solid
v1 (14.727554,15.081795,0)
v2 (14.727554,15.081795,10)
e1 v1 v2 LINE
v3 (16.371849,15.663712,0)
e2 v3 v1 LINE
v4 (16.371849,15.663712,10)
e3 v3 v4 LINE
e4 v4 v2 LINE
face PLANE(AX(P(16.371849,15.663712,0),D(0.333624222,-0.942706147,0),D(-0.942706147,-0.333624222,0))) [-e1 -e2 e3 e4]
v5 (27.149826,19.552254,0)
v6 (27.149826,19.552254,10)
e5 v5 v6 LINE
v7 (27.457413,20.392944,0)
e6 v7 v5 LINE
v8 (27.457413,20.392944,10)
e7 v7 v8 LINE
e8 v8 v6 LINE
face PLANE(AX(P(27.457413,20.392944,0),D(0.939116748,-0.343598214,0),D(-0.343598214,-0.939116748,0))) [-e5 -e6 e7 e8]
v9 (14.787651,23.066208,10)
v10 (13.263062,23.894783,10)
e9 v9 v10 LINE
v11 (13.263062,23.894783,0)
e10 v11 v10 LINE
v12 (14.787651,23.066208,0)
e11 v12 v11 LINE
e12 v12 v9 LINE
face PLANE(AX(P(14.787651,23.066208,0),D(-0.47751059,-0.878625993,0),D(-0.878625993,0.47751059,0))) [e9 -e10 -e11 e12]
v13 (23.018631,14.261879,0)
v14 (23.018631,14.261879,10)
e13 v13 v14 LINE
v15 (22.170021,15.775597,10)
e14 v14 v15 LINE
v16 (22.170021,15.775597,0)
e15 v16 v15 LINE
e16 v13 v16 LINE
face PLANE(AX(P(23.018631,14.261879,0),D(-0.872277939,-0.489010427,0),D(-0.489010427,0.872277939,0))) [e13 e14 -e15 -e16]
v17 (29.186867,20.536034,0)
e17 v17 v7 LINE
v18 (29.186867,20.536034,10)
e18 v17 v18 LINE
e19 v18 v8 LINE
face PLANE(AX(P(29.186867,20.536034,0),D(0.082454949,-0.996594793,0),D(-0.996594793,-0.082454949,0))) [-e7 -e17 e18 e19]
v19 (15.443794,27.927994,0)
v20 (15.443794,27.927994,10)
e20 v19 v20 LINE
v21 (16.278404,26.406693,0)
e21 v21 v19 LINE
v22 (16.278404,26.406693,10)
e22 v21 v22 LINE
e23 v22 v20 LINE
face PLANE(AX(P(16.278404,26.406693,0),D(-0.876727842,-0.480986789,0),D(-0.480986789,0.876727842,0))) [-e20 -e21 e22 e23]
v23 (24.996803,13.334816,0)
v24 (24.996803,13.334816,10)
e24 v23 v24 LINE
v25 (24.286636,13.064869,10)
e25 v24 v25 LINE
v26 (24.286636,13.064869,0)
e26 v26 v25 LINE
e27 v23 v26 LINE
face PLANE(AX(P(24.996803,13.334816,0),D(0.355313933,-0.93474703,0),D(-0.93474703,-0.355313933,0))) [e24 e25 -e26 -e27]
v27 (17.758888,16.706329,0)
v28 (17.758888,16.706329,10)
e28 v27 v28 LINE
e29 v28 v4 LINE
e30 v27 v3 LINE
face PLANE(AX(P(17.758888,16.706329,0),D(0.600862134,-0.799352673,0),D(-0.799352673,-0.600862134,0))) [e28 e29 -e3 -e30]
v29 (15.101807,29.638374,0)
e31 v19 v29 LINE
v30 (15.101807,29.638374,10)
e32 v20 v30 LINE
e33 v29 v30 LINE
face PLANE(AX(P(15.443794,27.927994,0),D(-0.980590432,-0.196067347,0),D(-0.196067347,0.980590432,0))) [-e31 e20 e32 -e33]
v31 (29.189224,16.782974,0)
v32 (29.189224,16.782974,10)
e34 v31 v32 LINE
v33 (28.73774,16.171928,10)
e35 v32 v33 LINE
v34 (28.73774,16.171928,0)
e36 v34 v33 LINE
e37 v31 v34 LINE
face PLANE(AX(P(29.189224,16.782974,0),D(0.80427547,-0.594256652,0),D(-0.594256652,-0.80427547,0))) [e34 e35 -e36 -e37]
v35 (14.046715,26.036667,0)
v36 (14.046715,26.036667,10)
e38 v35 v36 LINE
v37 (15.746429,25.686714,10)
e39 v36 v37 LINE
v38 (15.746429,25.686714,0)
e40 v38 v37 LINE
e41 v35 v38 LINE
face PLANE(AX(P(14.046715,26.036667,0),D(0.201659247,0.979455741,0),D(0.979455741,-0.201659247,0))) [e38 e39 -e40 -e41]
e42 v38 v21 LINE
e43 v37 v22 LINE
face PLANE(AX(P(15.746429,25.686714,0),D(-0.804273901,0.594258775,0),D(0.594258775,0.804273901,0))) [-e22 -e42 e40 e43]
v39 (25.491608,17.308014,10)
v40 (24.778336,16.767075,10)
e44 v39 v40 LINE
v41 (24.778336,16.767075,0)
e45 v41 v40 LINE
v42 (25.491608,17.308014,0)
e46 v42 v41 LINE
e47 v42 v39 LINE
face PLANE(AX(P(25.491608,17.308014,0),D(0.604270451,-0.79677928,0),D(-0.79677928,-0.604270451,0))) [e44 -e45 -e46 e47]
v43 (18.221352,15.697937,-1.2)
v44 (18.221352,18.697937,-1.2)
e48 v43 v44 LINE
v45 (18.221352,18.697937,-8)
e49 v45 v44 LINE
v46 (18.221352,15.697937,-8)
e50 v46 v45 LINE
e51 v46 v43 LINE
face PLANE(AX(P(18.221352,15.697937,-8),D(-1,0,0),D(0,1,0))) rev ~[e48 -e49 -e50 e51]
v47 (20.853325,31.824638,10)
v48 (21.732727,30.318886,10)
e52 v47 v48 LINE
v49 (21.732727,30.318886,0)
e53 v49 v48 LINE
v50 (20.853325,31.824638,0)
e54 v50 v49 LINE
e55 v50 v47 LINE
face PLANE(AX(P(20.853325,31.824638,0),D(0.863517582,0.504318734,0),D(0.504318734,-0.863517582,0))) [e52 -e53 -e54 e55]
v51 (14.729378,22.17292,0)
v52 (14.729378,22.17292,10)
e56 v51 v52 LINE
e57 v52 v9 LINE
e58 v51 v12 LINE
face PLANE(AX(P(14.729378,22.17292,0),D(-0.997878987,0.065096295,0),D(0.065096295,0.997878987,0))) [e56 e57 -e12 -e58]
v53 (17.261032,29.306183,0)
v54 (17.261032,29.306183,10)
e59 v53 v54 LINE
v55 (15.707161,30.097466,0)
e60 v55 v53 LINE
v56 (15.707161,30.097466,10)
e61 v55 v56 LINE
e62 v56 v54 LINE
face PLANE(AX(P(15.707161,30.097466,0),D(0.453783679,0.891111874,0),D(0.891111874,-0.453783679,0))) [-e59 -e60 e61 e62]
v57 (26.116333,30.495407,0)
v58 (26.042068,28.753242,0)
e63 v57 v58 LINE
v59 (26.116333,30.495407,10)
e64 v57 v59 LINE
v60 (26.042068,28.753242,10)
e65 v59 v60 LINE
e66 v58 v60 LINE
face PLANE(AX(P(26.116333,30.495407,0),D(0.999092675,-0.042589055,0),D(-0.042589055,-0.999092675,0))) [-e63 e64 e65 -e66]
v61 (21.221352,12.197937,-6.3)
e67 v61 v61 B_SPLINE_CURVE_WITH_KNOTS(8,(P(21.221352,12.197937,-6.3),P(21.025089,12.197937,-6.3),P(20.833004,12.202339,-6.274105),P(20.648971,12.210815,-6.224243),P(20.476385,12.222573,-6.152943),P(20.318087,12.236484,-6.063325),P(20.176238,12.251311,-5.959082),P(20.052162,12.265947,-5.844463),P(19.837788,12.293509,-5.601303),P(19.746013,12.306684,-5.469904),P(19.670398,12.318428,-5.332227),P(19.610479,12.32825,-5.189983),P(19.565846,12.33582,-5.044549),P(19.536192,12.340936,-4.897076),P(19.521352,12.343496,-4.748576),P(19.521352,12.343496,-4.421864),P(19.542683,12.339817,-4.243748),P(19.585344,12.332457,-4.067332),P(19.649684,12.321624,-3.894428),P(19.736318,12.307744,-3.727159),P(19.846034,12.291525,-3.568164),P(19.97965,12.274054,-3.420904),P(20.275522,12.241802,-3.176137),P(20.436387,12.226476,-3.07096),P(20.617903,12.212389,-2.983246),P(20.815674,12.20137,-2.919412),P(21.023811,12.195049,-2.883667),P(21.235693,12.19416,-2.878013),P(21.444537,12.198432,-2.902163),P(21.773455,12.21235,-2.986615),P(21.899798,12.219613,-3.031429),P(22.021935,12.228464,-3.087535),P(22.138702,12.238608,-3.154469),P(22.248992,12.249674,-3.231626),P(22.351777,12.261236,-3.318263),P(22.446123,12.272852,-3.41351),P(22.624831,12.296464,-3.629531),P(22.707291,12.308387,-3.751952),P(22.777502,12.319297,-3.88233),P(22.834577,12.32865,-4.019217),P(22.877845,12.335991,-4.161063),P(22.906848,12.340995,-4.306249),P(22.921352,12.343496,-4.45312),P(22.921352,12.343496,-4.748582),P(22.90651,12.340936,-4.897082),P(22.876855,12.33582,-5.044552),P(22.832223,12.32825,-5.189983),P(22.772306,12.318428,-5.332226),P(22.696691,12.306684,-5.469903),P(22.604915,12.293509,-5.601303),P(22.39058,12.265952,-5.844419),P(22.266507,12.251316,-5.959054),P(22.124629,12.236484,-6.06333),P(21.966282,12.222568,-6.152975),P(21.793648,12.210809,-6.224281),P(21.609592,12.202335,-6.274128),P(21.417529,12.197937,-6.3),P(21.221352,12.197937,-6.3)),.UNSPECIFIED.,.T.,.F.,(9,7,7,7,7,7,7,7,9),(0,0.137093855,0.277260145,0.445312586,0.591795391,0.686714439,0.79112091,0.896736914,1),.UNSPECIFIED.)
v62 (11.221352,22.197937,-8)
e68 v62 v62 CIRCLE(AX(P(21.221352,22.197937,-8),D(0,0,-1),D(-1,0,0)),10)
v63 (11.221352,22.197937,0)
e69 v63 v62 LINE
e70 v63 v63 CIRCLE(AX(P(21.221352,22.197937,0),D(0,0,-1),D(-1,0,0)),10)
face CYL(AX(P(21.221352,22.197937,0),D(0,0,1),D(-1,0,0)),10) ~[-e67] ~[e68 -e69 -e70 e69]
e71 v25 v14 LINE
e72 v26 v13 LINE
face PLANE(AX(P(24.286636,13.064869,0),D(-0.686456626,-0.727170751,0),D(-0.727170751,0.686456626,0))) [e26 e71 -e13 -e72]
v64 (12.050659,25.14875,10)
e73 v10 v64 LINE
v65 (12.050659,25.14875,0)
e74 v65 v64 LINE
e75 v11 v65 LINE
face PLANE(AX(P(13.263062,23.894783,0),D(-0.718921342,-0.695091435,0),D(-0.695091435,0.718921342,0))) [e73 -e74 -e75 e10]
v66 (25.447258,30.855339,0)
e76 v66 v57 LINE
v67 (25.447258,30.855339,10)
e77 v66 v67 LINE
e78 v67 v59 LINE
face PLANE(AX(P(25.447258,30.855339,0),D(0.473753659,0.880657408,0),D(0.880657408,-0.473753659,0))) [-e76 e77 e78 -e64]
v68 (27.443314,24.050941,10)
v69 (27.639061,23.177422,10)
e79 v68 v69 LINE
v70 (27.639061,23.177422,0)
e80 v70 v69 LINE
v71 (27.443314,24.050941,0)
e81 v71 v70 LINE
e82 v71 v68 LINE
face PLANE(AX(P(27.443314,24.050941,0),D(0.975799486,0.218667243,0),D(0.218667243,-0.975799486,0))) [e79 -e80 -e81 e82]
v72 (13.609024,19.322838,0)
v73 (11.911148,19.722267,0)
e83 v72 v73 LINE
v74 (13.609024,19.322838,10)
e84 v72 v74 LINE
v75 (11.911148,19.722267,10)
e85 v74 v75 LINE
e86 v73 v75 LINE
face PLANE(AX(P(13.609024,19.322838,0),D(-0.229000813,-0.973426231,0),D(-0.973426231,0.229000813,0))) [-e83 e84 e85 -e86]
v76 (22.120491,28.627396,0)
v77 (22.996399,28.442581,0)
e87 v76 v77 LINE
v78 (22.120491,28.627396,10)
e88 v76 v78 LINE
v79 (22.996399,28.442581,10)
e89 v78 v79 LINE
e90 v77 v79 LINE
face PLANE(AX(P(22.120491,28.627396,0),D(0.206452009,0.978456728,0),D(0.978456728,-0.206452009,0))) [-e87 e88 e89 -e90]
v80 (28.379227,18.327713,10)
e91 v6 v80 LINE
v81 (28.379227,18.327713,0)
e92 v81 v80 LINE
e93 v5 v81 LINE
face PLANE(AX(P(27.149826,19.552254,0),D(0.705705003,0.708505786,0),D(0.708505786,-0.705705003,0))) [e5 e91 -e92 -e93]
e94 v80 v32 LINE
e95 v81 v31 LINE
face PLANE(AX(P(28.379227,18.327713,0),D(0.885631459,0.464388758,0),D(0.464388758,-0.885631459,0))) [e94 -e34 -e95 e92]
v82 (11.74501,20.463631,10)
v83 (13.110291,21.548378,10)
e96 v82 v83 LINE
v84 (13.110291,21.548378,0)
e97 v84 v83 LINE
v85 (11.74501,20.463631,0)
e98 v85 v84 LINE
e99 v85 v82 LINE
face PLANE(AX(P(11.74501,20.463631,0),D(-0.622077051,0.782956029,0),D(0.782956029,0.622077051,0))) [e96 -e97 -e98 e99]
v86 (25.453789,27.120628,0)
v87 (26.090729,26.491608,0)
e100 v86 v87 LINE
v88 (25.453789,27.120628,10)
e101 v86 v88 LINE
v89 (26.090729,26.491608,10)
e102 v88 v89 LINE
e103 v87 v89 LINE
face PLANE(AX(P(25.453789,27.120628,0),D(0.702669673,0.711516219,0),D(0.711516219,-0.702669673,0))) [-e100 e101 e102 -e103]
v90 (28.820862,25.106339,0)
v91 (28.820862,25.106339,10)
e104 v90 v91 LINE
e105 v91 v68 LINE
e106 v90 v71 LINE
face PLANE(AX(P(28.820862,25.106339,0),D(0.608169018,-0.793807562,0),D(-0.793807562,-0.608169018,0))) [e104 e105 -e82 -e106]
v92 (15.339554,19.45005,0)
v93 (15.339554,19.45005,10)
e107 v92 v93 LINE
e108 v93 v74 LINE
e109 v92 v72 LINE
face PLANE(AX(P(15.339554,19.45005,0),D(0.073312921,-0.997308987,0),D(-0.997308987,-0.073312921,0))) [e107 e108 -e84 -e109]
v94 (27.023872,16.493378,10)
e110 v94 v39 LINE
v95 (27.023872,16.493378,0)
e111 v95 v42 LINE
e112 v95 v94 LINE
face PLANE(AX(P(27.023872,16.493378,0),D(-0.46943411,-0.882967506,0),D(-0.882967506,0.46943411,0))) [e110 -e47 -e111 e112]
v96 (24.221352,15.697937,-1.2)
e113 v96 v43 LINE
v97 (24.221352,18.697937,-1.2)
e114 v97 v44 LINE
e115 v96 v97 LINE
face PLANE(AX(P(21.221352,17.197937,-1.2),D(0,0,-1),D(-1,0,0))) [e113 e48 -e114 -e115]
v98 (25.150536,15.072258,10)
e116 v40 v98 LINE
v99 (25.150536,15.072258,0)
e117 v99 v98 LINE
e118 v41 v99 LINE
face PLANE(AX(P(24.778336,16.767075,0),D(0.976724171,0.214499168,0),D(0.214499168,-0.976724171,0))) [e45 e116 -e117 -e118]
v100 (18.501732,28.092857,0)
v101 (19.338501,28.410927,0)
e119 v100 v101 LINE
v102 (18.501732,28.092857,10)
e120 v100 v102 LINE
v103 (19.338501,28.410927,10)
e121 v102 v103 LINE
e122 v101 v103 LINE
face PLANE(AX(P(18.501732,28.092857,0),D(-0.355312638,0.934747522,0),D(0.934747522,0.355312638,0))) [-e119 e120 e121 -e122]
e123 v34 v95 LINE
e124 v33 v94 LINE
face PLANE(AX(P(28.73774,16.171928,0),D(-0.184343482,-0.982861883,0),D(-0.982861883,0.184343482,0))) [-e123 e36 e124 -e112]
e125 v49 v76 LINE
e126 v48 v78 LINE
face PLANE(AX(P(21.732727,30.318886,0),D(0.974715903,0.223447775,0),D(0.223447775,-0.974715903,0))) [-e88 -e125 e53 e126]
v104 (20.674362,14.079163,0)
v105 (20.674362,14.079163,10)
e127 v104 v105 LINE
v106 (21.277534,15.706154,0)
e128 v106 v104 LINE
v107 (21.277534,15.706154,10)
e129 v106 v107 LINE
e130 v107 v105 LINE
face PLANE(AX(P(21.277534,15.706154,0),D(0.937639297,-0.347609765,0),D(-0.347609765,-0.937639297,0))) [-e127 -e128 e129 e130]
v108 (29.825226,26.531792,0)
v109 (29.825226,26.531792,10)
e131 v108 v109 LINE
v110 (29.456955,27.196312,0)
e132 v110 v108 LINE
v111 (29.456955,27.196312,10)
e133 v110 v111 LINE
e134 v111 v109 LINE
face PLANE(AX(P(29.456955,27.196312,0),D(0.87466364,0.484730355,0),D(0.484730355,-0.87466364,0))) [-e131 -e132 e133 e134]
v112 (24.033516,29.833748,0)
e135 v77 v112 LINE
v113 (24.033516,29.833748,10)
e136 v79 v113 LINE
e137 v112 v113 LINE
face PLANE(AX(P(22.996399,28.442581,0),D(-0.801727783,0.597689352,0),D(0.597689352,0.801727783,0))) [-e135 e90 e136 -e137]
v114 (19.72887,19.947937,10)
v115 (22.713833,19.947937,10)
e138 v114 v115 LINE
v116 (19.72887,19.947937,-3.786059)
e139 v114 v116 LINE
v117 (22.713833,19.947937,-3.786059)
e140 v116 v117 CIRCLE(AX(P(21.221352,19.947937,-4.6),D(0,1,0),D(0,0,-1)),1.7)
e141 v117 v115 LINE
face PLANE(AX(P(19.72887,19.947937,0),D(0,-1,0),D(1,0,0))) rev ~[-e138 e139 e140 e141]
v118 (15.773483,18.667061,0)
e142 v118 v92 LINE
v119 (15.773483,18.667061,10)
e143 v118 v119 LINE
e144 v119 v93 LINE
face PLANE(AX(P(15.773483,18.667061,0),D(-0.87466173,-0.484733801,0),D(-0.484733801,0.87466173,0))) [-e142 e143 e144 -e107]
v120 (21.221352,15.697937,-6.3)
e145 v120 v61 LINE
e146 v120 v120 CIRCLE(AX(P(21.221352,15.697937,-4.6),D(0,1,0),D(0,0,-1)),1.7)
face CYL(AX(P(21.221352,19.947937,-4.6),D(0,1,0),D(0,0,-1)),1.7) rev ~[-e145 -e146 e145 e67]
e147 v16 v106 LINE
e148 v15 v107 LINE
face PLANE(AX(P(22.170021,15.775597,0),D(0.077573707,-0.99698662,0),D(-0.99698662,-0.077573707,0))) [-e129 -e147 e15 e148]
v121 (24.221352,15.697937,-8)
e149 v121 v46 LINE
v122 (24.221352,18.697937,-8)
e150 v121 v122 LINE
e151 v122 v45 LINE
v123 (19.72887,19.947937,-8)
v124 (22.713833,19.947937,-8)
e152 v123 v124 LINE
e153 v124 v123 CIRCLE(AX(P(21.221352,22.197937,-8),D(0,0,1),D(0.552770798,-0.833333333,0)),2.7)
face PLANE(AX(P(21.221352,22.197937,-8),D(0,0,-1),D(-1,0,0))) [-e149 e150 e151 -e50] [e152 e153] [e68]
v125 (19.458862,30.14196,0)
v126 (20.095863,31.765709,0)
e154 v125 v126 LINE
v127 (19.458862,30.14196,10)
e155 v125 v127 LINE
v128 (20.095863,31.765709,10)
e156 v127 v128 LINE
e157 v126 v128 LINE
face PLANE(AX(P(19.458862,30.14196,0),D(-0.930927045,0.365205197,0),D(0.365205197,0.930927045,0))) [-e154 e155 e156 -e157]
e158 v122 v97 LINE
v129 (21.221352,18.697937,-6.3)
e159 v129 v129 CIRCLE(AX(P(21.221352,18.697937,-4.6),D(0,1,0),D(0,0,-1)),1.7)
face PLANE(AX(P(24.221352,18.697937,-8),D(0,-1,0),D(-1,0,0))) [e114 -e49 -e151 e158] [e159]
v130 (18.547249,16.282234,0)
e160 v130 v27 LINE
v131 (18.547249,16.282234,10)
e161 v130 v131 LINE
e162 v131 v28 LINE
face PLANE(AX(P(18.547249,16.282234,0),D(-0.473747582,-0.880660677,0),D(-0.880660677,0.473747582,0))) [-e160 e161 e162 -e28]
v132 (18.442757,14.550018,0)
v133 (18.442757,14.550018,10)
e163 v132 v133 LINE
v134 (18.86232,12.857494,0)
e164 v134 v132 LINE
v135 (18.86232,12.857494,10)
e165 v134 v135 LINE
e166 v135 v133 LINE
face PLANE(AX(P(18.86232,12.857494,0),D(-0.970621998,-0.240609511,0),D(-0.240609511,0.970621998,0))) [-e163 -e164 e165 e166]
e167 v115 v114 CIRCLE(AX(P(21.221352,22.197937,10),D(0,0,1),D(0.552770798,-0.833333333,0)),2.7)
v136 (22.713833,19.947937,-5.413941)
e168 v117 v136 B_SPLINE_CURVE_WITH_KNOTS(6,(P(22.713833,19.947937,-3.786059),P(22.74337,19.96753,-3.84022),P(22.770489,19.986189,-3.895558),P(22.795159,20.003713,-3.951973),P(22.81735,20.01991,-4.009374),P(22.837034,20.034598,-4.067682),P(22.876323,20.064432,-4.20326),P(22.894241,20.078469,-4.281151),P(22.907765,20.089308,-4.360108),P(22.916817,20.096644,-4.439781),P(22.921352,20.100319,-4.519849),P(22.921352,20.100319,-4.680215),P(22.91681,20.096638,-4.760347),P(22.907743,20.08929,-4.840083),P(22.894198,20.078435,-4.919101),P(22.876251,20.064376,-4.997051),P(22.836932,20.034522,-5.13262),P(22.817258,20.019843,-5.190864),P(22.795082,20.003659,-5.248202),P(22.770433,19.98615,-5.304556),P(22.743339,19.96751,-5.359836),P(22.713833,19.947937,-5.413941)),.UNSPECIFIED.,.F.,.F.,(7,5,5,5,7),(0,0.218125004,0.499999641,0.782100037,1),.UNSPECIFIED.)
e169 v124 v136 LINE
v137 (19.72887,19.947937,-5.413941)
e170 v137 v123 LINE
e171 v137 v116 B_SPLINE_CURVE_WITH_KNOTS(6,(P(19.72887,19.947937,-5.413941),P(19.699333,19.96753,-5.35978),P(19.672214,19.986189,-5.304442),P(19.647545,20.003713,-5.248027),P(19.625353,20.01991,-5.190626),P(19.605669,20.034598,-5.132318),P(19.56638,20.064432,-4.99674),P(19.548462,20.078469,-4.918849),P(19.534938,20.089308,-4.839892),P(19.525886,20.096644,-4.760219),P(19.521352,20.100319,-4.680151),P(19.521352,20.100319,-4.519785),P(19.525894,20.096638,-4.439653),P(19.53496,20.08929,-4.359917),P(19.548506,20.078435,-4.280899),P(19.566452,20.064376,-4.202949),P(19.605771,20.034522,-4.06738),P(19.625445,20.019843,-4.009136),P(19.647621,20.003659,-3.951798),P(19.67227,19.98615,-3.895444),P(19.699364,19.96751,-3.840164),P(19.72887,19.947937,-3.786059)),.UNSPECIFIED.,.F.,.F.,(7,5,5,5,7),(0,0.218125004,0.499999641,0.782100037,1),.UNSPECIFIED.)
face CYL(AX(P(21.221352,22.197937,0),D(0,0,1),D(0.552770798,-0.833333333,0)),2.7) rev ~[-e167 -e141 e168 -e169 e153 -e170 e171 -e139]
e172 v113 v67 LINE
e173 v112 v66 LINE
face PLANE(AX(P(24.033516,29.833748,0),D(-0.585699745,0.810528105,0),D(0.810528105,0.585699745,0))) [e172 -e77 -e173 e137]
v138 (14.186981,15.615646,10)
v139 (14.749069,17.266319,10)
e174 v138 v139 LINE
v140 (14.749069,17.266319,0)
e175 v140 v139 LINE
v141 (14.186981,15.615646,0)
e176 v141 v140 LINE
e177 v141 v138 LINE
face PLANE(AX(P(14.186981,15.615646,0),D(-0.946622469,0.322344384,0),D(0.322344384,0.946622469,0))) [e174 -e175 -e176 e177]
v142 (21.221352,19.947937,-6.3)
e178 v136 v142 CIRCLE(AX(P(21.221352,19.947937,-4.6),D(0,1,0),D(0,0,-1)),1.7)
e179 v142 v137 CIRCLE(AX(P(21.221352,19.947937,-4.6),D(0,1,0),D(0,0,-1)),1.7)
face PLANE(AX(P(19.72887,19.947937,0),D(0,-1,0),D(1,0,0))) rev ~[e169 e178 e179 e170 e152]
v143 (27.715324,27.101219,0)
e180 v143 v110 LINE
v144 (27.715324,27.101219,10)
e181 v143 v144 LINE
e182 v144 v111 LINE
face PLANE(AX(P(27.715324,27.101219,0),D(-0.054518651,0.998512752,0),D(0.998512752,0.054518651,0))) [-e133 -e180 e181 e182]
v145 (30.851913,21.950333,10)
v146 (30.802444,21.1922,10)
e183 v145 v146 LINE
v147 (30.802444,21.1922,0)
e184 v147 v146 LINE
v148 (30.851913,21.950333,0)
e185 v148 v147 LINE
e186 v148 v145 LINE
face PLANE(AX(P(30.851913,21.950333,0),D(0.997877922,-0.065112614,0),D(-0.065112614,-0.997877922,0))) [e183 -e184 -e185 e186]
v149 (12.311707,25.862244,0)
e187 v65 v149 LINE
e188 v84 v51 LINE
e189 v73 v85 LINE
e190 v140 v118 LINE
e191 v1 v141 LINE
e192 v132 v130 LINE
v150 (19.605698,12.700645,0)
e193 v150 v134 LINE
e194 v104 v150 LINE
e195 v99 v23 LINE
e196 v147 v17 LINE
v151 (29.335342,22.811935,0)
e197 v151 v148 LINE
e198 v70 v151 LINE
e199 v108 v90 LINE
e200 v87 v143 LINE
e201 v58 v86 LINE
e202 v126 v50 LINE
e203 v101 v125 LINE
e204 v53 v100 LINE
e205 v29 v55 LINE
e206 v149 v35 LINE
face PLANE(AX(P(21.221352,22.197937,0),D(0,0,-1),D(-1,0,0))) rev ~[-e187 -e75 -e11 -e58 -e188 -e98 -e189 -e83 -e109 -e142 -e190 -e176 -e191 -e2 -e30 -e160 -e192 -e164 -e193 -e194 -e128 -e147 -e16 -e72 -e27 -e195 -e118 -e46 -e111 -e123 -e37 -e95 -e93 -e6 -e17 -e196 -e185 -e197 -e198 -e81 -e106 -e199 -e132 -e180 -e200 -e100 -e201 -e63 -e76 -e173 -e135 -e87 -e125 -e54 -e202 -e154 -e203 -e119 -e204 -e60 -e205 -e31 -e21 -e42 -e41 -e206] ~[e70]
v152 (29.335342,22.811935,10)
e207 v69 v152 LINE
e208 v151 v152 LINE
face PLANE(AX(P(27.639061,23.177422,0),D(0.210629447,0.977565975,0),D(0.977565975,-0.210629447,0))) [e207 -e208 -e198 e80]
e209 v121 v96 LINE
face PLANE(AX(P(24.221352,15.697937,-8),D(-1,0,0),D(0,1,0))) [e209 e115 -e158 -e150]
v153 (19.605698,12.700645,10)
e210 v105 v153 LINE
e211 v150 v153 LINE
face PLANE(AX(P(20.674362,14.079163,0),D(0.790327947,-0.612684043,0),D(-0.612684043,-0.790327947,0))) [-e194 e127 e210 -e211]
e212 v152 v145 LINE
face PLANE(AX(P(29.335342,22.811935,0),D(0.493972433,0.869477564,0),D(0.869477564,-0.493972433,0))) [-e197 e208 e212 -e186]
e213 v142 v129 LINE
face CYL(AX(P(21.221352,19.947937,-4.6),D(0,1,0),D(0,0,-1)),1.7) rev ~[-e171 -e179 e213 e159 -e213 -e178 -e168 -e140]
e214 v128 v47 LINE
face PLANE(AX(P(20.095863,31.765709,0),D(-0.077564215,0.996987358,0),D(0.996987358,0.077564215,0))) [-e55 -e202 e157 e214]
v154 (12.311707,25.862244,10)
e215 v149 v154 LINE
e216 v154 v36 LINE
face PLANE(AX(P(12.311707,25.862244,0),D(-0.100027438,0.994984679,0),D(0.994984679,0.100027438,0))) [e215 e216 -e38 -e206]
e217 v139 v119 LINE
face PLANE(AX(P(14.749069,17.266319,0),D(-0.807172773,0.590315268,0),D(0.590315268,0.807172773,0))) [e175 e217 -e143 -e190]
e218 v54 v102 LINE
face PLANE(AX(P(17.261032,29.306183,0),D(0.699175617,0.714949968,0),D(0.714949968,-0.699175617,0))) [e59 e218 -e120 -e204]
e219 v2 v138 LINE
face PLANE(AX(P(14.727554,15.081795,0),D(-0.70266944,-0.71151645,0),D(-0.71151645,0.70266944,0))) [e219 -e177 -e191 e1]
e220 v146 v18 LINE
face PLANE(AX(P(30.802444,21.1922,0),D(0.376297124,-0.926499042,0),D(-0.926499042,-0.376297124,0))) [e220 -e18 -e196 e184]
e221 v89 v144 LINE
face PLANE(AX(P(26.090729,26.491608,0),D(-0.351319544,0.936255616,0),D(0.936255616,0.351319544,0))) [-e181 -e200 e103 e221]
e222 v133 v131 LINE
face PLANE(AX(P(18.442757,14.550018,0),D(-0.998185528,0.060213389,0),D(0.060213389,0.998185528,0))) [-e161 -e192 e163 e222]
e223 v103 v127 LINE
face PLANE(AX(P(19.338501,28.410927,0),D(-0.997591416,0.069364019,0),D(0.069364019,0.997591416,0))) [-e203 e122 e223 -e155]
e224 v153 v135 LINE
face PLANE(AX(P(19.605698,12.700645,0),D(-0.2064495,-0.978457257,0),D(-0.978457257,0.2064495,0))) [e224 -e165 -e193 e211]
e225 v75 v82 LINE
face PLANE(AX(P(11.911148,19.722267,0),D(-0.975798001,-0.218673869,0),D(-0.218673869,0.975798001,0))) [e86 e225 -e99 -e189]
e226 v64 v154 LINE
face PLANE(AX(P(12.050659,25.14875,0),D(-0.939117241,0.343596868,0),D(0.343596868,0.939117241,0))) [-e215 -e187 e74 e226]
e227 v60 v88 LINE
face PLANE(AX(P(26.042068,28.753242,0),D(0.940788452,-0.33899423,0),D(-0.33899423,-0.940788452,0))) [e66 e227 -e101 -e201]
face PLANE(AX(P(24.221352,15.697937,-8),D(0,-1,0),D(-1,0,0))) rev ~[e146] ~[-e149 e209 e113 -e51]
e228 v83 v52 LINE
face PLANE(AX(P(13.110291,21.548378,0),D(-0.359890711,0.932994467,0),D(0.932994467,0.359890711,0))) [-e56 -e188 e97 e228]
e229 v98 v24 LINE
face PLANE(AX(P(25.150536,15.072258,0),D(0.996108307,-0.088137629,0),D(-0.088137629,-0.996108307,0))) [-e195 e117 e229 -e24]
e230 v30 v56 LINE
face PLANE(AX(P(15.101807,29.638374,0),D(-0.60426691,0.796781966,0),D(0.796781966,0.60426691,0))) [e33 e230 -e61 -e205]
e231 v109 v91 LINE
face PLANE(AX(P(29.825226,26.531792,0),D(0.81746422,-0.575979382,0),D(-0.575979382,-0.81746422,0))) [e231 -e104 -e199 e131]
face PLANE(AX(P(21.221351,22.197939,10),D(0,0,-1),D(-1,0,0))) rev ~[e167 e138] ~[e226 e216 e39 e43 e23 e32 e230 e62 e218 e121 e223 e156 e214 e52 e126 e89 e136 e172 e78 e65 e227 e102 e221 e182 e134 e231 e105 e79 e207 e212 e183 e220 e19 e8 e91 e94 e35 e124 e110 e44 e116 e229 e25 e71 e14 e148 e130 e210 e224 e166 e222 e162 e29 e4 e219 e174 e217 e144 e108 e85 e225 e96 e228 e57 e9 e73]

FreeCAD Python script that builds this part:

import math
import FreeCAD as App
import Part
import Sketcher

V = App.Vector
Q = App.Units.Quantity

doc = App.newDocument("Part")
params = doc.addObject("Spreadsheet::Sheet", "Params")
for row, (alias, value) in enumerate([
    ("sketch1_radius", "2.7 mm"),
    ("pad1_length", "10 mm"),
    ("sketch2_diameter", "20 mm"),
    ("sketch2_radius", "2.7 mm"),
    ("pad2_length", "8 mm"),
    ("sketch3_diameter", "3.4 mm"),
    ("pocket1_length", "2 mm"),
    ("pocket1_length2", "35.997647 mm"),
    ("sketch4_width", "6 mm"),
    ("sketch4_height", "3 mm"),
    ("pocket2_length", "6.8 mm"),
], start=1):
    params.set(f"A{row}", alias)
    params.set(f"B{row}", "=" + value)
    params.setAlias(f"B{row}", alias)

body = doc.addObject("PartDesign::Body", "Body")

# Sketch on XY plane
sketch1 = doc.addObject("Sketcher::SketchObject", "Sketch")
body.addObject(sketch1)
sketch1.AttachmentSupport = (doc.XY_Plane, [""])
sketch1.MapMode = "FlatFace"
sketch1.addGeometry([
    Part.LineSegment(V(15.443794, 27.927994, 0), V(16.278404, 26.406693, 0)),  # 0
    Part.LineSegment(V(16.278404, 26.406693, 0), V(15.746429, 25.686714, 0)),  # 1
    Part.LineSegment(V(15.746429, 25.686714, 0), V(14.046715, 26.036667, 0)),  # 2
    Part.LineSegment(V(14.046715, 26.036667, 0), V(12.311707, 25.862244, 0)),  # 3
    Part.LineSegment(V(12.311707, 25.862244, 0), V(12.050659, 25.14875, 0)),  # 4
    Part.LineSegment(V(12.050659, 25.14875, 0), V(13.263062, 23.894783, 0)),  # 5
    Part.LineSegment(V(13.263062, 23.894783, 0), V(14.787651, 23.066208, 0)),  # 6
    Part.LineSegment(V(14.787651, 23.066208, 0), V(14.729378, 22.17292, 0)),  # 7
    Part.LineSegment(V(14.729378, 22.17292, 0), V(13.110291, 21.548378, 0)),  # 8
    Part.LineSegment(V(13.110291, 21.548378, 0), V(11.74501, 20.463631, 0)),  # 9
    Part.LineSegment(V(11.74501, 20.463631, 0), V(11.911148, 19.722267, 0)),  # 10
    Part.LineSegment(V(11.911148, 19.722267, 0), V(13.609024, 19.322838, 0)),  # 11
    Part.LineSegment(V(13.609024, 19.322838, 0), V(15.339554, 19.45005, 0)),  # 12
    Part.LineSegment(V(15.339554, 19.45005, 0), V(15.773483, 18.667061, 0)),  # 13
    Part.LineSegment(V(15.773483, 18.667061, 0), V(14.749069, 17.266319, 0)),  # 14
    Part.LineSegment(V(14.749069, 17.266319, 0), V(14.186981, 15.615646, 0)),  # 15
    Part.LineSegment(V(14.186981, 15.615646, 0), V(14.727554, 15.081795, 0)),  # 16
    Part.LineSegment(V(14.727554, 15.081795, 0), V(16.371849, 15.663712, 0)),  # 17
    Part.LineSegment(V(16.371849, 15.663712, 0), V(17.758888, 16.706329, 0)),  # 18
    Part.LineSegment(V(17.758888, 16.706329, 0), V(18.547249, 16.282234, 0)),  # 19
    Part.LineSegment(V(18.547249, 16.282234, 0), V(18.442757, 14.550018, 0)),  # 20
    Part.LineSegment(V(18.442757, 14.550018, 0), V(18.86232, 12.857494, 0)),  # 21
    Part.LineSegment(V(18.86232, 12.857494, 0), V(19.605698, 12.700645, 0)),  # 22
    Part.LineSegment(V(19.605698, 12.700645, 0), V(20.674362, 14.079163, 0)),  # 23
    Part.LineSegment(V(20.674362, 14.079163, 0), V(21.277534, 15.706154, 0)),  # 24
    Part.LineSegment(V(21.277534, 15.706154, 0), V(22.170021, 15.775597, 0)),  # 25
    Part.LineSegment(V(22.170021, 15.775597, 0), V(23.018631, 14.261879, 0)),  # 26
    Part.LineSegment(V(23.018631, 14.261879, 0), V(24.286636, 13.064869, 0)),  # 27
    Part.LineSegment(V(24.286636, 13.064869, 0), V(24.996803, 13.334816, 0)),  # 28
    Part.LineSegment(V(24.996803, 13.334816, 0), V(25.150536, 15.072258, 0)),  # 29
    Part.LineSegment(V(25.150536, 15.072258, 0), V(24.778336, 16.767075, 0)),  # 30
    Part.LineSegment(V(24.778336, 16.767075, 0), V(25.491608, 17.308014, 0)),  # 31
    Part.LineSegment(V(25.491608, 17.308014, 0), V(27.023872, 16.493378, 0)),  # 32
    Part.LineSegment(V(27.023872, 16.493378, 0), V(28.73774, 16.171928, 0)),  # 33
    Part.LineSegment(V(28.73774, 16.171928, 0), V(29.189224, 16.782974, 0)),  # 34
    Part.LineSegment(V(29.189224, 16.782974, 0), V(28.379227, 18.327713, 0)),  # 35
    Part.LineSegment(V(28.379227, 18.327713, 0), V(27.149826, 19.552254, 0)),  # 36
    Part.LineSegment(V(27.149826, 19.552254, 0), V(27.457413, 20.392944, 0)),  # 37
    Part.LineSegment(V(27.457413, 20.392944, 0), V(29.186867, 20.536034, 0)),  # 38
    Part.LineSegment(V(29.186867, 20.536034, 0), V(30.802444, 21.1922, 0)),  # 39
    Part.LineSegment(V(30.802444, 21.1922, 0), V(30.851913, 21.950333, 0)),  # 40
    Part.LineSegment(V(30.851913, 21.950333, 0), V(29.335342, 22.811935, 0)),  # 41
    Part.LineSegment(V(29.335342, 22.811935, 0), V(27.639061, 23.177422, 0)),  # 42
    Part.LineSegment(V(27.639061, 23.177422, 0), V(27.443314, 24.050941, 0)),  # 43
    Part.LineSegment(V(27.443314, 24.050941, 0), V(28.820862, 25.106339, 0)),  # 44
    Part.LineSegment(V(28.820862, 25.106339, 0), V(29.825226, 26.531792, 0)),  # 45
    Part.LineSegment(V(29.825226, 26.531792, 0), V(29.456955, 27.196312, 0)),  # 46
    Part.LineSegment(V(29.456955, 27.196312, 0), V(27.715324, 27.101219, 0)),  # 47
    Part.LineSegment(V(27.715324, 27.101219, 0), V(26.090729, 26.491608, 0)),  # 48
    Part.LineSegment(V(26.090729, 26.491608, 0), V(25.453789, 27.120628, 0)),  # 49
    Part.LineSegment(V(25.453789, 27.120628, 0), V(26.042068, 28.753242, 0)),  # 50
    Part.LineSegment(V(26.042068, 28.753242, 0), V(26.116333, 30.495407, 0)),  # 51
    Part.LineSegment(V(26.116333, 30.495407, 0), V(25.447258, 30.855339, 0)),  # 52
    Part.LineSegment(V(25.447258, 30.855339, 0), V(24.033516, 29.833748, 0)),  # 53
    Part.LineSegment(V(24.033516, 29.833748, 0), V(22.996399, 28.442581, 0)),  # 54
    Part.LineSegment(V(22.996399, 28.442581, 0), V(22.120491, 28.627396, 0)),  # 55
    Part.LineSegment(V(22.120491, 28.627396, 0), V(21.732727, 30.318886, 0)),  # 56
    Part.LineSegment(V(21.732727, 30.318886, 0), V(20.853325, 31.824638, 0)),  # 57
    Part.LineSegment(V(20.853325, 31.824638, 0), V(20.095863, 31.765709, 0)),  # 58
    Part.LineSegment(V(20.095863, 31.765709, 0), V(19.458862, 30.14196, 0)),  # 59
    Part.LineSegment(V(19.458862, 30.14196, 0), V(19.338501, 28.410927, 0)),  # 60
    Part.LineSegment(V(19.338501, 28.410927, 0), V(18.501732, 28.092857, 0)),  # 61
    Part.LineSegment(V(18.501732, 28.092857, 0), V(17.261032, 29.306183, 0)),  # 62
    Part.LineSegment(V(17.261032, 29.306183, 0), V(15.707161, 30.097466, 0)),  # 63
    Part.LineSegment(V(15.707161, 30.097466, 0), V(15.101807, 29.638374, 0)),  # 64
    Part.LineSegment(V(15.101807, 29.638374, 0), V(15.443794, 27.927994, 0)),  # 65
    Part.ArcOfCircle(Part.Circle(V(21.221352, 22.197937, 0), V(0, 0, 1), 2.7), math.radians(-56.44269), math.radians(236.44269)),  # 66
    Part.LineSegment(V(22.713833, 19.947937, 0), V(19.72887, 19.947937, 0)),  # 67
], False)
sketch1.addConstraint([
    Sketcher.Constraint("Coincident", 0, 2, 1, 1),
    Sketcher.Constraint("Coincident", 1, 2, 2, 1),
    Sketcher.Constraint("Coincident", 2, 2, 3, 1),
    Sketcher.Constraint("Coincident", 3, 2, 4, 1),
    Sketcher.Constraint("Coincident", 4, 2, 5, 1),
    Sketcher.Constraint("Coincident", 5, 2, 6, 1),
    Sketcher.Constraint("Coincident", 6, 2, 7, 1),
    Sketcher.Constraint("Coincident", 7, 2, 8, 1),
    Sketcher.Constraint("Coincident", 8, 2, 9, 1),
    Sketcher.Constraint("Coincident", 9, 2, 10, 1),
    Sketcher.Constraint("Coincident", 10, 2, 11, 1),
    Sketcher.Constraint("Coincident", 11, 2, 12, 1),
    Sketcher.Constraint("Coincident", 12, 2, 13, 1),
    Sketcher.Constraint("Coincident", 13, 2, 14, 1),
    Sketcher.Constraint("Coincident", 14, 2, 15, 1),
    Sketcher.Constraint("Coincident", 15, 2, 16, 1),
    Sketcher.Constraint("Coincident", 16, 2, 17, 1),
    Sketcher.Constraint("Coincident", 17, 2, 18, 1),
    Sketcher.Constraint("Coincident", 18, 2, 19, 1),
    Sketcher.Constraint("Coincident", 19, 2, 20, 1),
    Sketcher.Constraint("Coincident", 20, 2, 21, 1),
    Sketcher.Constraint("Coincident", 21, 2, 22, 1),
    Sketcher.Constraint("Coincident", 22, 2, 23, 1),
    Sketcher.Constraint("Coincident", 23, 2, 24, 1),
    Sketcher.Constraint("Coincident", 24, 2, 25, 1),
    Sketcher.Constraint("Coincident", 25, 2, 26, 1),
    Sketcher.Constraint("Coincident", 26, 2, 27, 1),
    Sketcher.Constraint("Coincident", 27, 2, 28, 1),
    Sketcher.Constraint("Coincident", 28, 2, 29, 1),
    Sketcher.Constraint("Coincident", 29, 2, 30, 1),
    Sketcher.Constraint("Coincident", 30, 2, 31, 1),
    Sketcher.Constraint("Coincident", 31, 2, 32, 1),
    Sketcher.Constraint("Coincident", 32, 2, 33, 1),
    Sketcher.Constraint("Coincident", 33, 2, 34, 1),
    Sketcher.Constraint("Coincident", 34, 2, 35, 1),
    Sketcher.Constraint("Coincident", 35, 2, 36, 1),
    Sketcher.Constraint("Coincident", 36, 2, 37, 1),
    Sketcher.Constraint("Coincident", 37, 2, 38, 1),
    Sketcher.Constraint("Coincident", 38, 2, 39, 1),
    Sketcher.Constraint("Coincident", 39, 2, 40, 1),
    Sketcher.Constraint("Coincident", 40, 2, 41, 1),
    Sketcher.Constraint("Coincident", 41, 2, 42, 1),
    Sketcher.Constraint("Coincident", 42, 2, 43, 1),
    Sketcher.Constraint("Coincident", 43, 2, 44, 1),
    Sketcher.Constraint("Coincident", 44, 2, 45, 1),
    Sketcher.Constraint("Coincident", 45, 2, 46, 1),
    Sketcher.Constraint("Coincident", 46, 2, 47, 1),
    Sketcher.Constraint("Coincident", 47, 2, 48, 1),
    Sketcher.Constraint("Coincident", 48, 2, 49, 1),
    Sketcher.Constraint("Coincident", 49, 2, 50, 1),
    Sketcher.Constraint("Coincident", 50, 2, 51, 1),
    Sketcher.Constraint("Coincident", 51, 2, 52, 1),
    Sketcher.Constraint("Coincident", 52, 2, 53, 1),
    Sketcher.Constraint("Coincident", 53, 2, 54, 1),
    Sketcher.Constraint("Coincident", 54, 2, 55, 1),
    Sketcher.Constraint("Coincident", 55, 2, 56, 1),
    Sketcher.Constraint("Coincident", 56, 2, 57, 1),
    Sketcher.Constraint("Coincident", 57, 2, 58, 1),
    Sketcher.Constraint("Coincident", 58, 2, 59, 1),
    Sketcher.Constraint("Coincident", 59, 2, 60, 1),
    Sketcher.Constraint("Coincident", 60, 2, 61, 1),
    Sketcher.Constraint("Coincident", 61, 2, 62, 1),
    Sketcher.Constraint("Coincident", 62, 2, 63, 1),
    Sketcher.Constraint("Coincident", 63, 2, 64, 1),
    Sketcher.Constraint("Coincident", 64, 2, 65, 1),
    Sketcher.Constraint("Coincident", 65, 2, 0, 1),
    Sketcher.Constraint("Coincident", 66, 1, 67, 1),
    Sketcher.Constraint("Coincident", 67, 2, 66, 2),
    Sketcher.Constraint("Horizontal", 67),
    Sketcher.Constraint("Radius", 66, Q("2.7 mm")),
    Sketcher.Constraint("Distance", 12, Q("1.735199 mm")),
    Sketcher.Constraint("Distance", 24, Q("1.7352 mm")),
    Sketcher.Constraint("Distance", 36, Q("1.735202 mm")),
    Sketcher.Constraint("DistanceY", -1, 1, 39, 2, Q("21.1922 mm")),
    Sketcher.Constraint("DistanceX", -1, 1, 54, 2, Q("22.996399 mm")),
    Sketcher.Constraint("DistanceX", -1, 1, 60, 2, Q("19.338501 mm")),
    Sketcher.Constraint("Distance", 1, Q("0.89519 mm")),
    Sketcher.Constraint("Distance", 4, Q("0.759749 mm")),
    Sketcher.Constraint("Distance", 9, Q("1.743751 mm")),
    Sketcher.Constraint("Distance", 10, Q("0.759751 mm")),
    Sketcher.Constraint("Distance", 13, Q("0.895191 mm")),
    Sketcher.Constraint("Distance", 15, Q("1.74375 mm")),
    Sketcher.Constraint("Distance", 17, Q("1.744228 mm")),
    Sketcher.Constraint("Distance", 21, Q("1.743752 mm")),
    Sketcher.Constraint("Distance", 26, Q("1.735362 mm")),
    Sketcher.Constraint("Distance", 27, Q("1.743752 mm")),
    Sketcher.Constraint("Distance", 29, Q("1.74423 mm")),
    Sketcher.Constraint("Distance", 33, Q("1.743752 mm")),
    Sketcher.Constraint("Distance", 42, Q("1.735209 mm")),
    Sketcher.Constraint("Distance", 45, Q("1.74375 mm")),
    Sketcher.Constraint("Distance", 54, Q("1.735211 mm")),
    Sketcher.Constraint("Distance", 58, Q("0.75975 mm")),
    Sketcher.Constraint("Distance", 61, Q("0.895182 mm")),
    Sketcher.Constraint("Distance", 64, Q("0.759749 mm")),
    Sketcher.Constraint("DistanceX", 67, 2, 67, 1, Q("2.984962 mm")),
    Sketcher.Constraint("DistanceX", -1, 1, 66, 3, Q("21.221352 mm")),
    Sketcher.Constraint("DistanceX", -1, 1, 1, 2, Q("15.746429 mm")),
    Sketcher.Constraint("DistanceX", -1, 1, 4, 2, Q("12.050659 mm")),
    Sketcher.Constraint("DistanceY", -1, 1, 4, 2, Q("25.14875 mm")),
    Sketcher.Constraint("DistanceX", -1, 1, 5, 2, Q("13.263062 mm")),
    Sketcher.Constraint("DistanceX", -1, 1, 6, 2, Q("14.787651 mm")),
    Sketcher.Constraint("DistanceY", -1, 1, 7, 2, Q("22.17292 mm")),
    Sketcher.Constraint("DistanceX", -1, 1, 8, 2, Q("13.110291 mm")),
    Sketcher.Constraint("DistanceX", -1, 1, 9, 2, Q("11.74501 mm")),
    Sketcher.Constraint("DistanceY", -1, 1, 9, 2, Q("20.463631 mm")),
    Sketcher.Constraint("DistanceX", -1, 1, 10, 2, Q("11.911148 mm")),
    Sketcher.Constraint("DistanceY", -1, 1, 12, 2, Q("19.45005 mm")),
    Sketcher.Constraint("DistanceY", -1, 1, 13, 2, Q("18.667061 mm")),
    Sketcher.Constraint("DistanceX", -1, 1, 14, 2, Q("14.749069 mm")),
    Sketcher.Constraint("DistanceY", -1, 1, 14, 2, Q("17.266319 mm")),
    Sketcher.Constraint("DistanceX", -1, 1, 15, 2, Q("14.186981 mm")),
    Sketcher.Constraint("DistanceX", -1, 1, 17, 2, Q("16.371849 mm")),
    Sketcher.Constraint("DistanceY", -1, 1, 17, 2, Q("15.663712 mm")),
    Sketcher.Constraint("DistanceX", -1, 1, 18, 2, Q("17.758888 mm")),
    Sketcher.Constraint("DistanceY", -1, 1, 18, 2, Q("16.706329 mm")),
    Sketcher.Constraint("DistanceX", -1, 1, 19, 2, Q("18.547249 mm")),
    Sketcher.Constraint("DistanceY", -1, 1, 20, 2, Q("14.550018 mm")),
    Sketcher.Constraint("DistanceX", -1, 1, 21, 2, Q("18.86232 mm")),
    Sketcher.Constraint("DistanceX", -1, 1, 25, 2, Q("22.170021 mm")),
    Sketcher.Constraint("DistanceX", -1, 1, 26, 2, Q("23.018631 mm")),
    Sketcher.Constraint("DistanceY", -1, 1, 26, 2, Q("14.261879 mm")),
    Sketcher.Constraint("DistanceY", -1, 1, 27, 2, Q("13.064869 mm")),
    Sketcher.Constraint("DistanceX", -1, 1, 33, 2, Q("28.73774 mm")),
    Sketcher.Constraint("DistanceY", -1, 1, 33, 2, Q("16.171928 mm")),
    Sketcher.Constraint("DistanceX", -1, 1, 42, 2, Q("27.639061 mm")),
    Sketcher.Constraint("DistanceY", -1, 1, 42, 2, Q("23.177422 mm")),
    Sketcher.Constraint("DistanceY", -1, 1, 43, 2, Q("24.050941 mm")),
    Sketcher.Constraint("DistanceX", -1, 1, 44, 2, Q("28.820862 mm")),
    Sketcher.Constraint("DistanceY", -1, 1, 44, 2, Q("25.106339 mm")),
    Sketcher.Constraint("DistanceY", -1, 1, 45, 2, Q("26.531792 mm")),
    Sketcher.Constraint("DistanceY", -1, 1, 46, 2, Q("27.196312 mm")),
    Sketcher.Constraint("DistanceY", -1, 1, 47, 2, Q("27.101219 mm")),
    Sketcher.Constraint("DistanceX", -1, 1, 48, 2, Q("26.090729 mm")),
    Sketcher.Constraint("DistanceX", -1, 1, 49, 2, Q("25.453789 mm")),
    Sketcher.Constraint("DistanceY", -1, 1, 49, 2, Q("27.120628 mm")),
    Sketcher.Constraint("DistanceX", -1, 1, 50, 2, Q("26.042068 mm")),
    Sketcher.Constraint("DistanceY", -1, 1, 52, 2, Q("30.855339 mm")),
    Sketcher.Constraint("DistanceY", -1, 1, 54, 2, Q("28.442581 mm")),
    Sketcher.Constraint("DistanceX", -1, 1, 55, 2, Q("22.120491 mm")),
    Sketcher.Constraint("DistanceY", -1, 1, 57, 2, Q("31.824638 mm")),
    Sketcher.Constraint("DistanceY", -1, 1, 58, 2, Q("31.765709 mm")),
    Sketcher.Constraint("DistanceY", -1, 1, 59, 2, Q("30.14196 mm")),
    Sketcher.Constraint("DistanceX", -1, 1, 61, 2, Q("18.501732 mm")),
    Sketcher.Constraint("DistanceX", -1, 1, 63, 2, Q("15.707161 mm")),
    Sketcher.Constraint("Distance", 0, Q("1.735204 mm")),
    Sketcher.Constraint("Distance", 2, Q("1.735366 mm")),
    Sketcher.Constraint("Distance", 3, Q("1.743754 mm")),
    Sketcher.Constraint("Distance", 5, Q("1.744234 mm")),
    Sketcher.Constraint("Distance", 6, Q("1.735197 mm")),
    Sketcher.Constraint("Distance", 7, Q("0.895186 mm")),
    Sketcher.Constraint("Distance", 11, Q("1.744227 mm")),
    Sketcher.Constraint("Distance", 14, Q("1.735368 mm")),
    Sketcher.Constraint("Distance", 16, Q("0.759748 mm")),
    Sketcher.Constraint("Distance", 19, Q("0.895192 mm")),
    Sketcher.Constraint("Distance", 20, Q("1.735365 mm")),
    Sketcher.Constraint("Distance", 22, Q("0.759745 mm")),
    Sketcher.Constraint("Distance", 23, Q("1.744234 mm")),
    Sketcher.Constraint("Distance", 25, Q("0.895184 mm")),
    Sketcher.Constraint("Distance", 28, Q("0.759742 mm")),
    Sketcher.Constraint("Distance", 30, Q("1.735205 mm")),
    Sketcher.Constraint("Distance", 31, Q("0.895194 mm")),
    Sketcher.Constraint("Distance", 32, Q("1.735358 mm")),
    Sketcher.Constraint("Distance", 34, Q("0.759747 mm")),
    Sketcher.Constraint("Distance", 35, Q("1.744223 mm")),
    Sketcher.Constraint("Distance", 37, Q("0.895193 mm")),
    Sketcher.Constraint("Distance", 38, Q("1.735363 mm")),
    Sketcher.Constraint("Distance", 39, Q("1.743745 mm")),
    Sketcher.Constraint("Distance", 40, Q("0.759745 mm")),
    Sketcher.Constraint("Distance", 41, Q("1.744233 mm")),
    Sketcher.Constraint("Distance", 43, Q("0.895184 mm")),
    Sketcher.Constraint("Distance", 46, Q("0.759744 mm")),
    Sketcher.Constraint("Distance", 47, Q("1.744225 mm")),
    Sketcher.Constraint("Distance", 48, Q("1.735205 mm")),
    Sketcher.Constraint("Distance", 50, Q("1.735368 mm")),
    Sketcher.Constraint("Distance", 51, Q("1.743747 mm")),
    Sketcher.Constraint("Distance", 52, Q("0.759745 mm")),
    Sketcher.Constraint("Distance", 53, Q("1.744223 mm")),
    Sketcher.Constraint("Distance", 55, Q("0.895193 mm")),
    Sketcher.Constraint("Distance", 56, Q("1.735367 mm")),
    Sketcher.Constraint("Distance", 57, Q("1.743743 mm")),
    Sketcher.Constraint("Distance", 59, Q("1.744228 mm")),
    Sketcher.Constraint("Distance", 60, Q("1.735213 mm")),
    Sketcher.Constraint("Distance", 62, Q("1.735366 mm")),
    Sketcher.Constraint("Distance", 63, Q("1.743744 mm")),
    Sketcher.Constraint("Distance", 65, Q("1.744235 mm")),
    Sketcher.Constraint("DistanceY", -1, 1, 66, 3, Q("22.197937 mm")),
    Sketcher.Constraint("DistanceX", -1, 1, 0, 2, Q("16.278404 mm")),
    Sketcher.Constraint("DistanceY", -1, 1, 0, 2, Q("26.406693 mm")),
    Sketcher.Constraint("DistanceX", -1, 1, 2, 2, Q("14.046715 mm")),
    Sketcher.Constraint("DistanceX", -1, 1, 22, 2, Q("19.605698 mm")),
    Sketcher.Constraint("DistanceX", -1, 1, 23, 2, Q("20.674362 mm")),
    Sketcher.Constraint("DistanceX", -1, 1, 28, 2, Q("24.996803 mm")),
    Sketcher.Constraint("DistanceX", -1, 1, 29, 2, Q("25.150536 mm")),
    Sketcher.Constraint("DistanceX", -1, 1, 30, 2, Q("24.778336 mm")),
    Sketcher.Constraint("DistanceX", -1, 1, 31, 2, Q("25.491608 mm")),
    Sketcher.Constraint("DistanceX", -1, 1, 34, 2, Q("29.189224 mm")),
    Sketcher.Constraint("DistanceX", -1, 1, 35, 2, Q("28.379227 mm")),
    Sketcher.Constraint("DistanceX", -1, 1, 36, 2, Q("27.149826 mm")),
    Sketcher.Constraint("DistanceX", -1, 1, 37, 2, Q("27.457413 mm")),
    Sketcher.Constraint("DistanceX", -1, 1, 38, 2, Q("29.186867 mm")),
    Sketcher.Constraint("DistanceX", -1, 1, 40, 2, Q("30.851913 mm")),
    Sketcher.Constraint("DistanceX", -1, 1, 51, 2, Q("26.116333 mm")),
    Sketcher.Constraint("DistanceX", -1, 1, 56, 2, Q("21.732727 mm")),
    Sketcher.Constraint("DistanceX", -1, 1, 62, 2, Q("17.261032 mm")),
    Sketcher.Constraint("DistanceX", -1, 1, 64, 2, Q("15.101807 mm")),
])
sketch1.setExpression("Constraints[69]", "Params.sketch1_radius")
pad1 = doc.addObject("PartDesign::Pad", "Pad")
body.addObject(pad1)
pad1.Profile = sketch1
pad1.setExpression("Length", "Params.pad1_length")

# Sketch on XY plane
sketch2 = doc.addObject("Sketcher::SketchObject", "Sketch001")
body.addObject(sketch2)
sketch2.AttachmentSupport = (doc.XY_Plane, [""])
sketch2.MapMode = "FlatFace"
sketch2.addGeometry([
    Part.Circle(V(21.2, 22.2, 0), V(0, 0, 1), 10),
    Part.ArcOfCircle(Part.Circle(V(21.2, 22.2, 0), V(0, 0, 1), 2.7), math.radians(-56), math.radians(236)),
    Part.LineSegment(V(19.7, 19.9, 0), V(22.7, 19.9, 0)),
], False)
sketch2.addConstraint([
    Sketcher.Constraint("Coincident", 1, 1, 2, 2),
    Sketcher.Constraint("Coincident", 2, 1, 1, 2),
    Sketcher.Constraint("Horizontal", 2),
    Sketcher.Constraint("Coincident", 1, 3, 0, 3),
    Sketcher.Constraint("Diameter", 0, Q("20 mm")),
    Sketcher.Constraint("Radius", 1, Q("2.7 mm")),
    Sketcher.Constraint("DistanceY", 1, 1, 0, 3, Q("2.25 mm")),
    Sketcher.Constraint("DistanceX", -1, 1, 0, 3, Q("21.221352 mm")),
    Sketcher.Constraint("DistanceY", -1, 1, 0, 3, Q("22.197937 mm")),
])
sketch2.setExpression("Constraints[4]", "Params.sketch2_diameter")
sketch2.setExpression("Constraints[5]", "Params.sketch2_radius")
pad2 = doc.addObject("PartDesign::Pad", "Pad001")
body.addObject(pad2)
pad2.Profile = sketch2
pad2.setExpression("Length", "Params.pad2_length")
pad2.Reversed = True

# Sketch on XZ plane
sketch3 = doc.addObject("Sketcher::SketchObject", "Sketch002")
body.addObject(sketch3)
sketch3.AttachmentSupport = (doc.XZ_Plane, [""])
sketch3.MapMode = "FlatFace"
sketch3.AttachmentOffset = App.Placement(V(0, 0, -19.947937), App.Rotation())
sketch3.addGeometry(Part.Circle(V(21.2, -4.6, 0), V(0, 0, 1), 1.7), False)
sketch3.addConstraint([
    Sketcher.Constraint("Diameter", 0, Q("3.4 mm")),
    Sketcher.Constraint("DistanceY", 0, 3, -1, 1, Q("4.6 mm")),
    Sketcher.Constraint("DistanceX", -1, 1, 0, 3, Q("21.221352 mm")),
])
sketch3.setExpression("Constraints[0]", "Params.sketch3_diameter")
pocket1 = doc.addObject("PartDesign::Pocket", "Pocket")
body.addObject(pocket1)
pocket1.Profile = sketch3
pocket1.Type = "TwoLengths"
pocket1.setExpression("Length", "Params.pocket1_length")
pocket1.setExpression("Length2", "Params.pocket1_length2")

# Sketch on XY plane
sketch4 = doc.addObject("Sketcher::SketchObject", "Sketch003")
body.addObject(sketch4)
sketch4.AttachmentSupport = (doc.XY_Plane, [""])
sketch4.MapMode = "FlatFace"
sketch4.AttachmentOffset = App.Placement(V(0, 0, -8), App.Rotation())
sketch4.addGeometry([
    Part.LineSegment(V(24.2, 18.7, 0), V(24.2, 15.7, 0)),
    Part.LineSegment(V(24.2, 15.7, 0), V(18.2, 15.7, 0)),
    Part.LineSegment(V(18.2, 15.7, 0), V(18.2, 18.7, 0)),
    Part.LineSegment(V(18.2, 18.7, 0), V(24.2, 18.7, 0)),
], False)
sketch4.addConstraint([
    Sketcher.Constraint("Coincident", 0, 2, 1, 1),
    Sketcher.Constraint("Coincident", 1, 2, 2, 1),
    Sketcher.Constraint("Coincident", 2, 2, 3, 1),
    Sketcher.Constraint("Coincident", 3, 2, 0, 1),
    Sketcher.Constraint("Vertical", 0),
    Sketcher.Constraint("Horizontal", 1),
    Sketcher.Constraint("Vertical", 2),
    Sketcher.Constraint("Horizontal", 3),
    Sketcher.Constraint("DistanceX", 1, 2, 1, 1, Q("6 mm")),
    Sketcher.Constraint("DistanceY", 0, 2, 0, 1, Q("3 mm")),
    Sketcher.Constraint("DistanceX", -1, 1, 0, 2, Q("24.221352 mm")),
    Sketcher.Constraint("DistanceY", -1, 1, 0, 2, Q("15.697937 mm")),
])
sketch4.setExpression("Constraints[8]", "Params.sketch4_width")
sketch4.setExpression("Constraints[9]", "Params.sketch4_height")
pocket2 = doc.addObject("PartDesign::Pocket", "Pocket001")
body.addObject(pocket2)
pocket2.Profile = sketch4
pocket2.setExpression("Length", "Params.pocket2_length")
pocket2.Reversed = True

doc.recompute()
